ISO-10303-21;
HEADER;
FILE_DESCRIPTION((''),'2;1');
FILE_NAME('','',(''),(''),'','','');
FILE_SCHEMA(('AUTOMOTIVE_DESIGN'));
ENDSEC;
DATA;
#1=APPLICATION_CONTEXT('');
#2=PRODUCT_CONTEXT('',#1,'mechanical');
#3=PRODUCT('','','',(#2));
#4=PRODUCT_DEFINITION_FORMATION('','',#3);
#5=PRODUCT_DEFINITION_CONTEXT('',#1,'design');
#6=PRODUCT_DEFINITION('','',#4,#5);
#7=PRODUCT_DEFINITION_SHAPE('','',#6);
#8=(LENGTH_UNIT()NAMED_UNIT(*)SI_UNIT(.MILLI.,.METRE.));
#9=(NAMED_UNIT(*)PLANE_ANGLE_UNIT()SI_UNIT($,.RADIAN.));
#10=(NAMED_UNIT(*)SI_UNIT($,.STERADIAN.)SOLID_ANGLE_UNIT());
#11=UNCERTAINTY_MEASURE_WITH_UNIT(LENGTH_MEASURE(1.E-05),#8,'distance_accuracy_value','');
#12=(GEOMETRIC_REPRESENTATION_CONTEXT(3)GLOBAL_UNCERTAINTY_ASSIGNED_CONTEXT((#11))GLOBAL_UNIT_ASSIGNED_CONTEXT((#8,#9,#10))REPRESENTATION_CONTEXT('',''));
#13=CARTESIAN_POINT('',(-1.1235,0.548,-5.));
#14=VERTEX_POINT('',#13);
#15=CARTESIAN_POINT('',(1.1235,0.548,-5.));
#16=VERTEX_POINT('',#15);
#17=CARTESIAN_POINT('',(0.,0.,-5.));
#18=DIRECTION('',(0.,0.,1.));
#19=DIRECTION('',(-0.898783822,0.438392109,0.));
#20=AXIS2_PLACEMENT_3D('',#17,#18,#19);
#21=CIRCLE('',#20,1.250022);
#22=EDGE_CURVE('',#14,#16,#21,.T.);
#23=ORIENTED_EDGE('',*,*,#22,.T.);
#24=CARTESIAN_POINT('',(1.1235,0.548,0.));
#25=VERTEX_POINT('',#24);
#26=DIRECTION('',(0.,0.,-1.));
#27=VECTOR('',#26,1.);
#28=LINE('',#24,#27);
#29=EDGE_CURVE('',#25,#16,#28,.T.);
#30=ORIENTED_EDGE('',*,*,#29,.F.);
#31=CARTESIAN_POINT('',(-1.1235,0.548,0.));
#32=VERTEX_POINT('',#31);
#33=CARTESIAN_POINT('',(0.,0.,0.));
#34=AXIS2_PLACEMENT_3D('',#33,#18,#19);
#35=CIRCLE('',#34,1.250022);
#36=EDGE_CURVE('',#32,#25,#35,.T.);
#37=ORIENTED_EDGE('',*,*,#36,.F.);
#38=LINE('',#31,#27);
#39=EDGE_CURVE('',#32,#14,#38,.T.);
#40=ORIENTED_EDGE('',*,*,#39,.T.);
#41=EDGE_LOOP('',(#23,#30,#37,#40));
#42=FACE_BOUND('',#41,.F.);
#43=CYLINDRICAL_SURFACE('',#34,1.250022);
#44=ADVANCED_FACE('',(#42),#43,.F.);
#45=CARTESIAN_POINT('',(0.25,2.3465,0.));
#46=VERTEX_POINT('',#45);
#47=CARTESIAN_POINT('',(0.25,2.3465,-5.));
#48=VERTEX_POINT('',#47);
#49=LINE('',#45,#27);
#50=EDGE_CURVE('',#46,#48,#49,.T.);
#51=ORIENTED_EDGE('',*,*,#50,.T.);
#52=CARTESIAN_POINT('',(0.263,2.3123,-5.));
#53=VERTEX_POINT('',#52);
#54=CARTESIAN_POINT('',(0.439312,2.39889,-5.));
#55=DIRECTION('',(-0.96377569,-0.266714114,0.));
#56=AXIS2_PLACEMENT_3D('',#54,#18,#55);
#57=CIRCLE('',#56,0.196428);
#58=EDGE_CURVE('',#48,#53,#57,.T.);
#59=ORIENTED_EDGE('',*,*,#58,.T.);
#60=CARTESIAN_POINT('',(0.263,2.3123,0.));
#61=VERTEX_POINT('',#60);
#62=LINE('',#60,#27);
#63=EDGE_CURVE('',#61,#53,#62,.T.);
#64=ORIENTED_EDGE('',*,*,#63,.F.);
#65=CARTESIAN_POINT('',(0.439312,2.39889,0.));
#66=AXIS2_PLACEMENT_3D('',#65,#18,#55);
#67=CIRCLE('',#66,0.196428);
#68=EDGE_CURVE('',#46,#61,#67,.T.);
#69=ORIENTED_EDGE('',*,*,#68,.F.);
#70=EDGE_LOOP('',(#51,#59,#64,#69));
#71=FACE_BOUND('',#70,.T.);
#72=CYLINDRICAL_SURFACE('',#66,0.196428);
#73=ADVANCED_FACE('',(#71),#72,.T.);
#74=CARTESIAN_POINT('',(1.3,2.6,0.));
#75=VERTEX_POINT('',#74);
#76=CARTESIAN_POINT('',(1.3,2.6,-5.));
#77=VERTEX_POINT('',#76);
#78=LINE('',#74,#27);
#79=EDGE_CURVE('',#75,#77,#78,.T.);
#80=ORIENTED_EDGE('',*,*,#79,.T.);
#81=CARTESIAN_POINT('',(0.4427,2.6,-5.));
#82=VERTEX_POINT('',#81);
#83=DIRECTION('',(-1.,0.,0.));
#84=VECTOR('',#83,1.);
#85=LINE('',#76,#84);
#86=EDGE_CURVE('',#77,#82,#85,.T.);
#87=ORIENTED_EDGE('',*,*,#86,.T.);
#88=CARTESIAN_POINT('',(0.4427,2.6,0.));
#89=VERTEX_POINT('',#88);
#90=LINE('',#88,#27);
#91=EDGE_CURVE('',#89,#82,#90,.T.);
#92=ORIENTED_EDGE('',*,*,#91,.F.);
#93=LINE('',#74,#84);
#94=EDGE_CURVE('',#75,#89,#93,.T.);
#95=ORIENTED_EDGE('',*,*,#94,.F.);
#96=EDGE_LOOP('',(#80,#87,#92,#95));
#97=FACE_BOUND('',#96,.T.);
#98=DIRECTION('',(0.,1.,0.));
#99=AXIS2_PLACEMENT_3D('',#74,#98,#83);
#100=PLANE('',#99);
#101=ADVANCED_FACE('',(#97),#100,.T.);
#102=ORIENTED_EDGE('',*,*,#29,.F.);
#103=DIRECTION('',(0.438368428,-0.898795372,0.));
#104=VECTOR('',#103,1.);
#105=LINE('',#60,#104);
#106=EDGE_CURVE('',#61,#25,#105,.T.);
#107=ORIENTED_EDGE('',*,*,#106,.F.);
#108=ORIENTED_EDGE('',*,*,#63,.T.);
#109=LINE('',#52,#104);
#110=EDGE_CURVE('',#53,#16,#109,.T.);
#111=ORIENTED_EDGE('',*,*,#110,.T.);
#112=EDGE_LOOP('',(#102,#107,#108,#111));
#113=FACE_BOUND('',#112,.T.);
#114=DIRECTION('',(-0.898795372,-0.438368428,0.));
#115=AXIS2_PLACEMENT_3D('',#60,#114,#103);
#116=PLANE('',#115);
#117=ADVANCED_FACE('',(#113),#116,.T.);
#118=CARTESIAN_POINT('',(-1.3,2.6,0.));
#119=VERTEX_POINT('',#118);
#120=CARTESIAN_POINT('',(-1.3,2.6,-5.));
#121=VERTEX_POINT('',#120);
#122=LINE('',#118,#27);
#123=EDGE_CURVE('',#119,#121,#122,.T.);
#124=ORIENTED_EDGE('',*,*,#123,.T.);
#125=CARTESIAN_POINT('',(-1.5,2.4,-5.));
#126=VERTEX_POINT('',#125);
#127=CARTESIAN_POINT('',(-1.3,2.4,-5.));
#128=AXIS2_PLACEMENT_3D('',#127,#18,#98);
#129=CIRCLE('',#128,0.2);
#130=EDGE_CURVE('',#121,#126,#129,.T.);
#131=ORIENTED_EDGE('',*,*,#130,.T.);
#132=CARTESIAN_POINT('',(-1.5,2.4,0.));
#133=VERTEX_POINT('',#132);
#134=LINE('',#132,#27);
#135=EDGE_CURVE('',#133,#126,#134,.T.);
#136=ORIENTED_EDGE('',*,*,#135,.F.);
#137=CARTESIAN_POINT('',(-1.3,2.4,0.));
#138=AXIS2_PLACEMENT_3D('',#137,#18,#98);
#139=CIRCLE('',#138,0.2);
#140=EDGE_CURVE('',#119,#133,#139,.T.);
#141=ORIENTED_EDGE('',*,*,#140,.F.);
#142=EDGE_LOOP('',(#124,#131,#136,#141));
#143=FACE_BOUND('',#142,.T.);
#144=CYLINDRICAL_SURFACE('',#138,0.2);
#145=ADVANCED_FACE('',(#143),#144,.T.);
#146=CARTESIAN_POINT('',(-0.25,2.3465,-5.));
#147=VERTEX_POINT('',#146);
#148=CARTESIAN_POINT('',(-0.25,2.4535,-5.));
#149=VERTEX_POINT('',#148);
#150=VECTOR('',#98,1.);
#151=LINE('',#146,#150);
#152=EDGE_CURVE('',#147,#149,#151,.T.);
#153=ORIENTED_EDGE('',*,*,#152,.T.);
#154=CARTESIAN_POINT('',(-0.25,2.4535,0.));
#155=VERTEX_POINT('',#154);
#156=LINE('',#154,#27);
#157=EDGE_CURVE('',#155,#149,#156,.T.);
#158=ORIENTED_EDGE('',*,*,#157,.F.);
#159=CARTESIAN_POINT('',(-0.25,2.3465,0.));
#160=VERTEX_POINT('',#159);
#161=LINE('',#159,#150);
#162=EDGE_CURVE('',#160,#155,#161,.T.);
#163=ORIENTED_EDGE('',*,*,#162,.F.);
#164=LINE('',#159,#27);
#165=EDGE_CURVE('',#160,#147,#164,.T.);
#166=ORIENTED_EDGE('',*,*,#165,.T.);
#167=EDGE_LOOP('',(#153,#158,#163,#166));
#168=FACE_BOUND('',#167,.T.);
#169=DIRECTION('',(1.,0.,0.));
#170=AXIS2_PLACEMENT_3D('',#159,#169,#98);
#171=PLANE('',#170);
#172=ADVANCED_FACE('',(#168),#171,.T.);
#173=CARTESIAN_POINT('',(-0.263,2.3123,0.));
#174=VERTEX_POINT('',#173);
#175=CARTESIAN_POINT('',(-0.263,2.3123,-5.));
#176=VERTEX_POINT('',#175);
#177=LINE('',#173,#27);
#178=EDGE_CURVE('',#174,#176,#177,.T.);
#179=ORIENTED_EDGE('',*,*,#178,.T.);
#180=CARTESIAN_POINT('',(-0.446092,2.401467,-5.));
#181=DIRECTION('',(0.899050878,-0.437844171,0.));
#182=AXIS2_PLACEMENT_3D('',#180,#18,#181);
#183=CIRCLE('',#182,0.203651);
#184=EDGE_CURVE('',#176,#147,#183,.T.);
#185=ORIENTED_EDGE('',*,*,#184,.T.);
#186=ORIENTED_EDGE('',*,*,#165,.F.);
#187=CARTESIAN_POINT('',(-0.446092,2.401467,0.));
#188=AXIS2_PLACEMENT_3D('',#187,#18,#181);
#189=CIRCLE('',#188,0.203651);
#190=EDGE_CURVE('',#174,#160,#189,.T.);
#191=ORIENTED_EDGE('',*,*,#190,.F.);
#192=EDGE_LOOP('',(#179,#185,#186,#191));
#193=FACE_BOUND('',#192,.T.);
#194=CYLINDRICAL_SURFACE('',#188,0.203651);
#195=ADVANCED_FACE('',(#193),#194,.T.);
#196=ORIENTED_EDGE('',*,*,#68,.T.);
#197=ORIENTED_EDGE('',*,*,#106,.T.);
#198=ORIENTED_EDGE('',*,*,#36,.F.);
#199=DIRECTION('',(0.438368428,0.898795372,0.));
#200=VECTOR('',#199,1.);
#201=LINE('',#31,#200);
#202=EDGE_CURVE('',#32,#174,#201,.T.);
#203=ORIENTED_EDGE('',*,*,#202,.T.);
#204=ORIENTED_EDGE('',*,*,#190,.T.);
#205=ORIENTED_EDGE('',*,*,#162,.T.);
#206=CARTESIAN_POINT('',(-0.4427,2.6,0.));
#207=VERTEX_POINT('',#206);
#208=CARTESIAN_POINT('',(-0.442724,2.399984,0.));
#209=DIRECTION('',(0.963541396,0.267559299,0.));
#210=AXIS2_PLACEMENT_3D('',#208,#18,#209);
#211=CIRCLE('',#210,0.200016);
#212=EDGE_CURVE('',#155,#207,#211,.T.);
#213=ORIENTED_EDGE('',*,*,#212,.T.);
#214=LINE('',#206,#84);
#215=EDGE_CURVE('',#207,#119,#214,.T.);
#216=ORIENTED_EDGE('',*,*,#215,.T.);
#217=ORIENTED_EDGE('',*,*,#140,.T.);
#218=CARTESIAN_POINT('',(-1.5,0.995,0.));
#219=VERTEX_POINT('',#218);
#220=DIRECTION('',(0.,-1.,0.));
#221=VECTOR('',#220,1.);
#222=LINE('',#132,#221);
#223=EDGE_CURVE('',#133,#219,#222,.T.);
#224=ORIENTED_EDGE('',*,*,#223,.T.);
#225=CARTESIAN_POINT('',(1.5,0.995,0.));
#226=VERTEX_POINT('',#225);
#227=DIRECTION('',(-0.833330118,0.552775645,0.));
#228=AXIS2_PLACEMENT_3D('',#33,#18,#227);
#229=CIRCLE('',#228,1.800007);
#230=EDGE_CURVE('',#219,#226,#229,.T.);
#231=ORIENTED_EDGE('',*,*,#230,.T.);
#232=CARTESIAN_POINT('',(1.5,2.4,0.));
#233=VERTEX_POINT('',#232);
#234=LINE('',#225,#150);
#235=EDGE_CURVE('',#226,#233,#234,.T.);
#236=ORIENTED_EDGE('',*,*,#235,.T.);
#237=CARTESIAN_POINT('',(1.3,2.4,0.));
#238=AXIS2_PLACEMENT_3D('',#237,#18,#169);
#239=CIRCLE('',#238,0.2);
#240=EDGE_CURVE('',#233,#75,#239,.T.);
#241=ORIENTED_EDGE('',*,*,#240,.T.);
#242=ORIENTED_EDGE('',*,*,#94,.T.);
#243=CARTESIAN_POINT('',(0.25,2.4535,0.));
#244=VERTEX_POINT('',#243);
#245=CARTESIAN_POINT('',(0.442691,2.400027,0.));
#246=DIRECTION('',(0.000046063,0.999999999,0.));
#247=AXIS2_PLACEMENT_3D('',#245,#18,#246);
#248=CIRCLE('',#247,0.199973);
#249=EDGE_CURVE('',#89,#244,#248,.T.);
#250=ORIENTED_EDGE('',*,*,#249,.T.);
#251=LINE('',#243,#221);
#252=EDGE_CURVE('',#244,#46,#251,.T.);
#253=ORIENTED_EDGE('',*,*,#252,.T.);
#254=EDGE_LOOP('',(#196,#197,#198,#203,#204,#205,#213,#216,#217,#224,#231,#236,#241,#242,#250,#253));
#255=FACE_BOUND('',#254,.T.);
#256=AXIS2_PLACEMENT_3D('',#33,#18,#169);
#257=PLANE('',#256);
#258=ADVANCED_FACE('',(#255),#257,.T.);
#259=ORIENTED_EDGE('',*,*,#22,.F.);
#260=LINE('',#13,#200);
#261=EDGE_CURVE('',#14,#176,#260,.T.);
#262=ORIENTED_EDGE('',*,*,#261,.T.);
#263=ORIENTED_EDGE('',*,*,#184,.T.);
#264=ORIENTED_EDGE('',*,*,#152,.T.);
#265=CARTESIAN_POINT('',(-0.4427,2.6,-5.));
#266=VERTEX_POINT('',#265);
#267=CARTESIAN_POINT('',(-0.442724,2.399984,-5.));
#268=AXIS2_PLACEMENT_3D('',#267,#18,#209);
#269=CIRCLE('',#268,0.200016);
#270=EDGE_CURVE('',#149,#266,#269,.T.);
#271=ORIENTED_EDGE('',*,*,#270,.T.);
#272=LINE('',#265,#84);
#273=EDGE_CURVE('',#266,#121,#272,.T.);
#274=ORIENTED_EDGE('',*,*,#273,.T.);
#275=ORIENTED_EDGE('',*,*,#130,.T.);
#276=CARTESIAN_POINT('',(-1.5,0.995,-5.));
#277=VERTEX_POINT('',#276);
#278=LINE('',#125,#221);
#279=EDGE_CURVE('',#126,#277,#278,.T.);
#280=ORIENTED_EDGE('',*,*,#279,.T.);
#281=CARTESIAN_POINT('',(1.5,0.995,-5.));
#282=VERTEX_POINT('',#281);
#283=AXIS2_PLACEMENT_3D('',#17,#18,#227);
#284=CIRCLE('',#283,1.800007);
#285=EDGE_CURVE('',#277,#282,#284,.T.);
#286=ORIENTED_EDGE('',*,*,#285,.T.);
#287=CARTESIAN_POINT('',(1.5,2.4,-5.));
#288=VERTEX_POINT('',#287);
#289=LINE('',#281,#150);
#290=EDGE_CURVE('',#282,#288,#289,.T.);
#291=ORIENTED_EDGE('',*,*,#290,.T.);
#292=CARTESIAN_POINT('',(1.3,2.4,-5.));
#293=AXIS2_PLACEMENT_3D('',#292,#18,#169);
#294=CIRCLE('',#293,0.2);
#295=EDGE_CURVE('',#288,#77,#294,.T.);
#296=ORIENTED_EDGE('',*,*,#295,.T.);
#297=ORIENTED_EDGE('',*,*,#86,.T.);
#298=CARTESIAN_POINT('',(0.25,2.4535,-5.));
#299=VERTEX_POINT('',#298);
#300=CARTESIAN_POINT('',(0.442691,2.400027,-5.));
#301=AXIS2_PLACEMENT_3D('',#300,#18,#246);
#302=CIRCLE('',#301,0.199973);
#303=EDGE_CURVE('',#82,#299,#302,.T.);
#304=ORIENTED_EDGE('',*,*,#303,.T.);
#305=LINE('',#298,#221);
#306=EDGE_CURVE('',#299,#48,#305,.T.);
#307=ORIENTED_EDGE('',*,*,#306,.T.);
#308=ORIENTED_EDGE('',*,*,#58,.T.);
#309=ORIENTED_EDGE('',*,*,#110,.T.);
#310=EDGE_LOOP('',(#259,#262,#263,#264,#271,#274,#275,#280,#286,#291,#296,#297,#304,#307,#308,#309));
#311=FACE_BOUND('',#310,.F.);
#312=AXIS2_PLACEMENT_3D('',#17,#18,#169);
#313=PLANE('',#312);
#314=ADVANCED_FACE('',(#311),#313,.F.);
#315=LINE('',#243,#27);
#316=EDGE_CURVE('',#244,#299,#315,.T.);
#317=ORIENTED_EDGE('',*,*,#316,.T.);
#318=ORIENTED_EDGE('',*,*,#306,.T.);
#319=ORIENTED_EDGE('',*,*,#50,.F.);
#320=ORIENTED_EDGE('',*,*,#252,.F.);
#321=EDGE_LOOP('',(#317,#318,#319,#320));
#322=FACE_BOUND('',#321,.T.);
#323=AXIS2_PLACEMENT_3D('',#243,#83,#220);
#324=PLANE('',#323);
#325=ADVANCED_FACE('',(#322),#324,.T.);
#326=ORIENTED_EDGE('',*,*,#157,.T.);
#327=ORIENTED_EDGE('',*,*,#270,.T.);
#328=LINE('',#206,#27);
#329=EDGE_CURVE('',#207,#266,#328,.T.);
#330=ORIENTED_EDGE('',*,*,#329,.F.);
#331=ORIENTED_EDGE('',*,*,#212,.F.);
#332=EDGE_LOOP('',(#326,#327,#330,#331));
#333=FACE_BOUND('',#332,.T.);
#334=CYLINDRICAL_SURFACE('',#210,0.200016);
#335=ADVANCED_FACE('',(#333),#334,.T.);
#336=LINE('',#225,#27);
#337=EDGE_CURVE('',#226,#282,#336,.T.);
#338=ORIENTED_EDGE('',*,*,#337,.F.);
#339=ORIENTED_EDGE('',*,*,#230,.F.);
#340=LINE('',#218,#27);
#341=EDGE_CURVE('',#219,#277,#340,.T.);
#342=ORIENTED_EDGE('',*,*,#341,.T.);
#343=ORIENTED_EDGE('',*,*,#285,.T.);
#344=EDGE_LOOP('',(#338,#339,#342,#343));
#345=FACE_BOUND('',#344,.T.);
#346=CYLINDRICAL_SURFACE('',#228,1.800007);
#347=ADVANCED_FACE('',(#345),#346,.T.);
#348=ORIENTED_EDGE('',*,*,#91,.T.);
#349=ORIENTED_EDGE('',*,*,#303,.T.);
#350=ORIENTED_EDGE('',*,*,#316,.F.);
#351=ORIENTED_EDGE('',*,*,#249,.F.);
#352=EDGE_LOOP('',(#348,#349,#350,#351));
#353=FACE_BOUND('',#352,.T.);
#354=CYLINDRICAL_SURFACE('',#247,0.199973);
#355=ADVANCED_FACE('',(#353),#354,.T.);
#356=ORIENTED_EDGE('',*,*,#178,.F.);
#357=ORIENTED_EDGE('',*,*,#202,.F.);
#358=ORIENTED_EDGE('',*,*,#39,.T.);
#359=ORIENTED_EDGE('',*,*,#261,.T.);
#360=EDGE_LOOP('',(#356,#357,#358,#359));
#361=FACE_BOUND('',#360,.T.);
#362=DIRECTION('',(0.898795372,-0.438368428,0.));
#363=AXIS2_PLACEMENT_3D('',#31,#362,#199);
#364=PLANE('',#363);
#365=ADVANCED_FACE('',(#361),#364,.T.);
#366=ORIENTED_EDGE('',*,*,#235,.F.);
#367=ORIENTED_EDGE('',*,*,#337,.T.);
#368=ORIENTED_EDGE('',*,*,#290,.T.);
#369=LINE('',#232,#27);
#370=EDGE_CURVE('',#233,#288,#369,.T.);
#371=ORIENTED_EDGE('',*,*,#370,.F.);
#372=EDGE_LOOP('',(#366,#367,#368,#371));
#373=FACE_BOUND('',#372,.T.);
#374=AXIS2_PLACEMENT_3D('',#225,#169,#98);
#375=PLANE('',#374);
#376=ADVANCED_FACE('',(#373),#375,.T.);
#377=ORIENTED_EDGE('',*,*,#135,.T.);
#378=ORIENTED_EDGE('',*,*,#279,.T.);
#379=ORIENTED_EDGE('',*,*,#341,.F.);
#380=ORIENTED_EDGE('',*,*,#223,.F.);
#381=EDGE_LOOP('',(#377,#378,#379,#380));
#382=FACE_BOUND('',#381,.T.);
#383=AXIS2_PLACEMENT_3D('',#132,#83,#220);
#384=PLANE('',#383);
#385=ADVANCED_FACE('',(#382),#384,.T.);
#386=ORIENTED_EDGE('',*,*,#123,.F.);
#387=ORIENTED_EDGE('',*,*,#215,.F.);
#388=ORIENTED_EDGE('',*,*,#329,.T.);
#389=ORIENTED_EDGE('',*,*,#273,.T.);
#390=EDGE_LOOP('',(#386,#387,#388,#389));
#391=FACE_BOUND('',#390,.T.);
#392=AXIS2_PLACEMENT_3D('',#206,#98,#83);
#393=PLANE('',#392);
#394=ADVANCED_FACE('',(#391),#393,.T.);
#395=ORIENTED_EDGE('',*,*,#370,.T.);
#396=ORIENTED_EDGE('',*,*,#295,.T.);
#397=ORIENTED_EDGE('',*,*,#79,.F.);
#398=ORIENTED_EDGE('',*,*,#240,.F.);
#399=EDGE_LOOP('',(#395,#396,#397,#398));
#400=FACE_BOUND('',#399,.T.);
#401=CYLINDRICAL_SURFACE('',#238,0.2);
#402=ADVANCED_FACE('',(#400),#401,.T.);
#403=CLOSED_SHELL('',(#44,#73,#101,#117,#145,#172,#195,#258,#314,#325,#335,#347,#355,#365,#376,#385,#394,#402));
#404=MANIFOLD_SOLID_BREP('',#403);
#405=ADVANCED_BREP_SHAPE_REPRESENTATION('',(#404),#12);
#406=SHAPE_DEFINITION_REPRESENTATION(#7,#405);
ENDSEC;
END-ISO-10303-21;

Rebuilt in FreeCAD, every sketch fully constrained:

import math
import FreeCAD as App
import Part
import Sketcher
Q = App.Units.Quantity

doc = App.newDocument("Part")
body = doc.addObject("PartDesign::Body", "Body")

# Sketch on XY plane
sketch1 = doc.addObject("Sketcher::SketchObject", "Sketch")
body.addObject(sketch1)
sketch1.AttachmentSupport = (doc.XY_Plane, [""])
sketch1.MapMode = "FlatFace"
sketch1.addGeometry([
    Part.LineSegment(App.Vector(-1.5, 2.4, 0), App.Vector(-1.5, 0.995, 0)),  # 0
    Part.ArcOfCircle(Part.Circle(App.Vector(0, 0, 0), App.Vector(0, 0, 1), 1.800007), math.radians(146.442357), math.radians(393.557643)),  # 1
    Part.LineSegment(App.Vector(1.5, 0.995, 0), App.Vector(1.5, 2.4, 0)),  # 2
    Part.ArcOfCircle(Part.Circle(App.Vector(1.3, 2.4, 0), App.Vector(0, 0, 1), 0.2), math.radians(0), math.radians(90)),  # 3
    Part.LineSegment(App.Vector(1.3, 2.6, 0), App.Vector(0.4427, 2.6, 0)),  # 4
    Part.ArcOfCircle(Part.Circle(App.Vector(0.4427, 2.4, 0), App.Vector(0, 0, 1), 0.199989), math.radians(90), math.radians(164.483557)),  # 5
    Part.LineSegment(App.Vector(0.25, 2.4535, 0), App.Vector(0.25, 2.3465, 0)),  # 6
    Part.ArcOfCircle(Part.Circle(App.Vector(0.439312, 2.39889, 0), App.Vector(0, 0, 1), 0.196428), math.radians(-164.531169), math.radians(-153.843538)),  # 7
    Part.LineSegment(App.Vector(0.263, 2.3123, 0), App.Vector(1.1235, 0.548, 0)),  # 8
    Part.ArcOfCircle(Part.Circle(App.Vector(0, 0, 0), App.Vector(0, 0, 1), 1.250022), math.radians(153.998664), math.radians(386.001336)),  # 9
    Part.LineSegment(App.Vector(-1.1235, 0.548, 0), App.Vector(-0.263, 2.3123, 0)),  # 10
    Part.ArcOfCircle(Part.Circle(App.Vector(-0.446092, 2.401467, 0), App.Vector(0, 0, 1), 0.203651), math.radians(-25.966412), math.radians(-15.658882)),  # 11
    Part.LineSegment(App.Vector(-0.25, 2.3465, 0), App.Vector(-0.25, 2.4535, 0)),  # 12
    Part.ArcOfCircle(Part.Circle(App.Vector(-0.4427, 2.4, 0), App.Vector(0, 0, 1), 0.199989), math.radians(15.516443), math.radians(90)),  # 13
    Part.LineSegment(App.Vector(-0.4427, 2.6, 0), App.Vector(-1.3, 2.6, 0)),  # 14
    Part.ArcOfCircle(Part.Circle(App.Vector(-1.3, 2.4, 0), App.Vector(0, 0, 1), 0.2), math.radians(90), math.radians(180)),  # 15
], False)
sketch1.addConstraint([
    Sketcher.Constraint("Coincident", 0, 2, 1, 1),
    Sketcher.Constraint("Coincident", 1, 2, 2, 1),
    Sketcher.Constraint("Tangent", 2, 2, 3, 1),
    Sketcher.Constraint("Tangent", 3, 2, 4, 1),
    Sketcher.Constraint("Tangent", 4, 2, 5, 1),
    Sketcher.Constraint("Coincident", 5, 2, 6, 1),
    Sketcher.Constraint("Coincident", 6, 2, 7, 1),
    Sketcher.Constraint("Coincident", 7, 2, 8, 1),
    Sketcher.Constraint("Tangent", 8, 2, 9, 2),
    Sketcher.Constraint("Tangent", 9, 1, 10, 1),
    Sketcher.Constraint("Coincident", 10, 2, 11, 1),
    Sketcher.Constraint("Coincident", 11, 2, 12, 1),
    Sketcher.Constraint("Coincident", 12, 2, 13, 1),
    Sketcher.Constraint("Tangent", 13, 2, 14, 1),
    Sketcher.Constraint("Tangent", 14, 2, 15, 1),
    Sketcher.Constraint("Tangent", 15, 2, 0, 1),
    Sketcher.Constraint("Vertical", 0),
    Sketcher.Constraint("Vertical", 2),
    Sketcher.Constraint("Horizontal", 4),
    Sketcher.Constraint("Vertical", 6),
    Sketcher.Constraint("Vertical", 12),
    Sketcher.Constraint("Horizontal", 14),
    Sketcher.Constraint("Coincident", 1, 3, -1, 1),
    Sketcher.Constraint("Coincident", 9, 3, -1, 1),
    Sketcher.Constraint("Equal", 3, 5),
    Sketcher.Constraint("Equal", 5, 13),
    Sketcher.Constraint("Equal", 13, 15),
    Sketcher.Constraint("Symmetric", 5, 3, 13, 3, -2),
    Sketcher.Constraint("Symmetric", 7, 2, 10, 2, -2),
    Sketcher.Constraint("Symmetric", 6, 2, 11, 2, -2),
    Sketcher.Constraint("Horizontal", 0, 2, 1, 2),
    Sketcher.Constraint("Radius", 1, Q("1.8 mm")),
    Sketcher.Constraint("Radius", 3, Q("0.2 mm")),
    Sketcher.Constraint("Angle", 8, Q("-64.0002 deg")),
    Sketcher.Constraint("Radius", 9, Q("1.25 mm")),
    Sketcher.Constraint("DistanceX", -1, 1, 3, 3, Q("1.3 mm")),
    Sketcher.Constraint("DistanceY", -1, 1, 3, 3, Q("2.4 mm")),
    Sketcher.Constraint("Radius", 7, Q("0.1964 mm")),
    Sketcher.Constraint("Radius", 11, Q("0.2037 mm")),
    Sketcher.Constraint("DistanceX", 11, 2, 6, 2, Q("0.5 mm")),
    Sketcher.Constraint("DistanceY", 6, 2, 6, 1, Q("0.107 mm")),
    Sketcher.Constraint("Distance", 8, Q("1.963 mm")),
    Sketcher.Constraint("DistanceX", 4, 2, 4, 1, Q("0.8573 mm")),
])
pad1 = doc.addObject("PartDesign::Pad", "Pad")
body.addObject(pad1)
pad1.Profile = sketch1
pad1.Length = 5
pad1.Reversed = True

doc.recompute()
